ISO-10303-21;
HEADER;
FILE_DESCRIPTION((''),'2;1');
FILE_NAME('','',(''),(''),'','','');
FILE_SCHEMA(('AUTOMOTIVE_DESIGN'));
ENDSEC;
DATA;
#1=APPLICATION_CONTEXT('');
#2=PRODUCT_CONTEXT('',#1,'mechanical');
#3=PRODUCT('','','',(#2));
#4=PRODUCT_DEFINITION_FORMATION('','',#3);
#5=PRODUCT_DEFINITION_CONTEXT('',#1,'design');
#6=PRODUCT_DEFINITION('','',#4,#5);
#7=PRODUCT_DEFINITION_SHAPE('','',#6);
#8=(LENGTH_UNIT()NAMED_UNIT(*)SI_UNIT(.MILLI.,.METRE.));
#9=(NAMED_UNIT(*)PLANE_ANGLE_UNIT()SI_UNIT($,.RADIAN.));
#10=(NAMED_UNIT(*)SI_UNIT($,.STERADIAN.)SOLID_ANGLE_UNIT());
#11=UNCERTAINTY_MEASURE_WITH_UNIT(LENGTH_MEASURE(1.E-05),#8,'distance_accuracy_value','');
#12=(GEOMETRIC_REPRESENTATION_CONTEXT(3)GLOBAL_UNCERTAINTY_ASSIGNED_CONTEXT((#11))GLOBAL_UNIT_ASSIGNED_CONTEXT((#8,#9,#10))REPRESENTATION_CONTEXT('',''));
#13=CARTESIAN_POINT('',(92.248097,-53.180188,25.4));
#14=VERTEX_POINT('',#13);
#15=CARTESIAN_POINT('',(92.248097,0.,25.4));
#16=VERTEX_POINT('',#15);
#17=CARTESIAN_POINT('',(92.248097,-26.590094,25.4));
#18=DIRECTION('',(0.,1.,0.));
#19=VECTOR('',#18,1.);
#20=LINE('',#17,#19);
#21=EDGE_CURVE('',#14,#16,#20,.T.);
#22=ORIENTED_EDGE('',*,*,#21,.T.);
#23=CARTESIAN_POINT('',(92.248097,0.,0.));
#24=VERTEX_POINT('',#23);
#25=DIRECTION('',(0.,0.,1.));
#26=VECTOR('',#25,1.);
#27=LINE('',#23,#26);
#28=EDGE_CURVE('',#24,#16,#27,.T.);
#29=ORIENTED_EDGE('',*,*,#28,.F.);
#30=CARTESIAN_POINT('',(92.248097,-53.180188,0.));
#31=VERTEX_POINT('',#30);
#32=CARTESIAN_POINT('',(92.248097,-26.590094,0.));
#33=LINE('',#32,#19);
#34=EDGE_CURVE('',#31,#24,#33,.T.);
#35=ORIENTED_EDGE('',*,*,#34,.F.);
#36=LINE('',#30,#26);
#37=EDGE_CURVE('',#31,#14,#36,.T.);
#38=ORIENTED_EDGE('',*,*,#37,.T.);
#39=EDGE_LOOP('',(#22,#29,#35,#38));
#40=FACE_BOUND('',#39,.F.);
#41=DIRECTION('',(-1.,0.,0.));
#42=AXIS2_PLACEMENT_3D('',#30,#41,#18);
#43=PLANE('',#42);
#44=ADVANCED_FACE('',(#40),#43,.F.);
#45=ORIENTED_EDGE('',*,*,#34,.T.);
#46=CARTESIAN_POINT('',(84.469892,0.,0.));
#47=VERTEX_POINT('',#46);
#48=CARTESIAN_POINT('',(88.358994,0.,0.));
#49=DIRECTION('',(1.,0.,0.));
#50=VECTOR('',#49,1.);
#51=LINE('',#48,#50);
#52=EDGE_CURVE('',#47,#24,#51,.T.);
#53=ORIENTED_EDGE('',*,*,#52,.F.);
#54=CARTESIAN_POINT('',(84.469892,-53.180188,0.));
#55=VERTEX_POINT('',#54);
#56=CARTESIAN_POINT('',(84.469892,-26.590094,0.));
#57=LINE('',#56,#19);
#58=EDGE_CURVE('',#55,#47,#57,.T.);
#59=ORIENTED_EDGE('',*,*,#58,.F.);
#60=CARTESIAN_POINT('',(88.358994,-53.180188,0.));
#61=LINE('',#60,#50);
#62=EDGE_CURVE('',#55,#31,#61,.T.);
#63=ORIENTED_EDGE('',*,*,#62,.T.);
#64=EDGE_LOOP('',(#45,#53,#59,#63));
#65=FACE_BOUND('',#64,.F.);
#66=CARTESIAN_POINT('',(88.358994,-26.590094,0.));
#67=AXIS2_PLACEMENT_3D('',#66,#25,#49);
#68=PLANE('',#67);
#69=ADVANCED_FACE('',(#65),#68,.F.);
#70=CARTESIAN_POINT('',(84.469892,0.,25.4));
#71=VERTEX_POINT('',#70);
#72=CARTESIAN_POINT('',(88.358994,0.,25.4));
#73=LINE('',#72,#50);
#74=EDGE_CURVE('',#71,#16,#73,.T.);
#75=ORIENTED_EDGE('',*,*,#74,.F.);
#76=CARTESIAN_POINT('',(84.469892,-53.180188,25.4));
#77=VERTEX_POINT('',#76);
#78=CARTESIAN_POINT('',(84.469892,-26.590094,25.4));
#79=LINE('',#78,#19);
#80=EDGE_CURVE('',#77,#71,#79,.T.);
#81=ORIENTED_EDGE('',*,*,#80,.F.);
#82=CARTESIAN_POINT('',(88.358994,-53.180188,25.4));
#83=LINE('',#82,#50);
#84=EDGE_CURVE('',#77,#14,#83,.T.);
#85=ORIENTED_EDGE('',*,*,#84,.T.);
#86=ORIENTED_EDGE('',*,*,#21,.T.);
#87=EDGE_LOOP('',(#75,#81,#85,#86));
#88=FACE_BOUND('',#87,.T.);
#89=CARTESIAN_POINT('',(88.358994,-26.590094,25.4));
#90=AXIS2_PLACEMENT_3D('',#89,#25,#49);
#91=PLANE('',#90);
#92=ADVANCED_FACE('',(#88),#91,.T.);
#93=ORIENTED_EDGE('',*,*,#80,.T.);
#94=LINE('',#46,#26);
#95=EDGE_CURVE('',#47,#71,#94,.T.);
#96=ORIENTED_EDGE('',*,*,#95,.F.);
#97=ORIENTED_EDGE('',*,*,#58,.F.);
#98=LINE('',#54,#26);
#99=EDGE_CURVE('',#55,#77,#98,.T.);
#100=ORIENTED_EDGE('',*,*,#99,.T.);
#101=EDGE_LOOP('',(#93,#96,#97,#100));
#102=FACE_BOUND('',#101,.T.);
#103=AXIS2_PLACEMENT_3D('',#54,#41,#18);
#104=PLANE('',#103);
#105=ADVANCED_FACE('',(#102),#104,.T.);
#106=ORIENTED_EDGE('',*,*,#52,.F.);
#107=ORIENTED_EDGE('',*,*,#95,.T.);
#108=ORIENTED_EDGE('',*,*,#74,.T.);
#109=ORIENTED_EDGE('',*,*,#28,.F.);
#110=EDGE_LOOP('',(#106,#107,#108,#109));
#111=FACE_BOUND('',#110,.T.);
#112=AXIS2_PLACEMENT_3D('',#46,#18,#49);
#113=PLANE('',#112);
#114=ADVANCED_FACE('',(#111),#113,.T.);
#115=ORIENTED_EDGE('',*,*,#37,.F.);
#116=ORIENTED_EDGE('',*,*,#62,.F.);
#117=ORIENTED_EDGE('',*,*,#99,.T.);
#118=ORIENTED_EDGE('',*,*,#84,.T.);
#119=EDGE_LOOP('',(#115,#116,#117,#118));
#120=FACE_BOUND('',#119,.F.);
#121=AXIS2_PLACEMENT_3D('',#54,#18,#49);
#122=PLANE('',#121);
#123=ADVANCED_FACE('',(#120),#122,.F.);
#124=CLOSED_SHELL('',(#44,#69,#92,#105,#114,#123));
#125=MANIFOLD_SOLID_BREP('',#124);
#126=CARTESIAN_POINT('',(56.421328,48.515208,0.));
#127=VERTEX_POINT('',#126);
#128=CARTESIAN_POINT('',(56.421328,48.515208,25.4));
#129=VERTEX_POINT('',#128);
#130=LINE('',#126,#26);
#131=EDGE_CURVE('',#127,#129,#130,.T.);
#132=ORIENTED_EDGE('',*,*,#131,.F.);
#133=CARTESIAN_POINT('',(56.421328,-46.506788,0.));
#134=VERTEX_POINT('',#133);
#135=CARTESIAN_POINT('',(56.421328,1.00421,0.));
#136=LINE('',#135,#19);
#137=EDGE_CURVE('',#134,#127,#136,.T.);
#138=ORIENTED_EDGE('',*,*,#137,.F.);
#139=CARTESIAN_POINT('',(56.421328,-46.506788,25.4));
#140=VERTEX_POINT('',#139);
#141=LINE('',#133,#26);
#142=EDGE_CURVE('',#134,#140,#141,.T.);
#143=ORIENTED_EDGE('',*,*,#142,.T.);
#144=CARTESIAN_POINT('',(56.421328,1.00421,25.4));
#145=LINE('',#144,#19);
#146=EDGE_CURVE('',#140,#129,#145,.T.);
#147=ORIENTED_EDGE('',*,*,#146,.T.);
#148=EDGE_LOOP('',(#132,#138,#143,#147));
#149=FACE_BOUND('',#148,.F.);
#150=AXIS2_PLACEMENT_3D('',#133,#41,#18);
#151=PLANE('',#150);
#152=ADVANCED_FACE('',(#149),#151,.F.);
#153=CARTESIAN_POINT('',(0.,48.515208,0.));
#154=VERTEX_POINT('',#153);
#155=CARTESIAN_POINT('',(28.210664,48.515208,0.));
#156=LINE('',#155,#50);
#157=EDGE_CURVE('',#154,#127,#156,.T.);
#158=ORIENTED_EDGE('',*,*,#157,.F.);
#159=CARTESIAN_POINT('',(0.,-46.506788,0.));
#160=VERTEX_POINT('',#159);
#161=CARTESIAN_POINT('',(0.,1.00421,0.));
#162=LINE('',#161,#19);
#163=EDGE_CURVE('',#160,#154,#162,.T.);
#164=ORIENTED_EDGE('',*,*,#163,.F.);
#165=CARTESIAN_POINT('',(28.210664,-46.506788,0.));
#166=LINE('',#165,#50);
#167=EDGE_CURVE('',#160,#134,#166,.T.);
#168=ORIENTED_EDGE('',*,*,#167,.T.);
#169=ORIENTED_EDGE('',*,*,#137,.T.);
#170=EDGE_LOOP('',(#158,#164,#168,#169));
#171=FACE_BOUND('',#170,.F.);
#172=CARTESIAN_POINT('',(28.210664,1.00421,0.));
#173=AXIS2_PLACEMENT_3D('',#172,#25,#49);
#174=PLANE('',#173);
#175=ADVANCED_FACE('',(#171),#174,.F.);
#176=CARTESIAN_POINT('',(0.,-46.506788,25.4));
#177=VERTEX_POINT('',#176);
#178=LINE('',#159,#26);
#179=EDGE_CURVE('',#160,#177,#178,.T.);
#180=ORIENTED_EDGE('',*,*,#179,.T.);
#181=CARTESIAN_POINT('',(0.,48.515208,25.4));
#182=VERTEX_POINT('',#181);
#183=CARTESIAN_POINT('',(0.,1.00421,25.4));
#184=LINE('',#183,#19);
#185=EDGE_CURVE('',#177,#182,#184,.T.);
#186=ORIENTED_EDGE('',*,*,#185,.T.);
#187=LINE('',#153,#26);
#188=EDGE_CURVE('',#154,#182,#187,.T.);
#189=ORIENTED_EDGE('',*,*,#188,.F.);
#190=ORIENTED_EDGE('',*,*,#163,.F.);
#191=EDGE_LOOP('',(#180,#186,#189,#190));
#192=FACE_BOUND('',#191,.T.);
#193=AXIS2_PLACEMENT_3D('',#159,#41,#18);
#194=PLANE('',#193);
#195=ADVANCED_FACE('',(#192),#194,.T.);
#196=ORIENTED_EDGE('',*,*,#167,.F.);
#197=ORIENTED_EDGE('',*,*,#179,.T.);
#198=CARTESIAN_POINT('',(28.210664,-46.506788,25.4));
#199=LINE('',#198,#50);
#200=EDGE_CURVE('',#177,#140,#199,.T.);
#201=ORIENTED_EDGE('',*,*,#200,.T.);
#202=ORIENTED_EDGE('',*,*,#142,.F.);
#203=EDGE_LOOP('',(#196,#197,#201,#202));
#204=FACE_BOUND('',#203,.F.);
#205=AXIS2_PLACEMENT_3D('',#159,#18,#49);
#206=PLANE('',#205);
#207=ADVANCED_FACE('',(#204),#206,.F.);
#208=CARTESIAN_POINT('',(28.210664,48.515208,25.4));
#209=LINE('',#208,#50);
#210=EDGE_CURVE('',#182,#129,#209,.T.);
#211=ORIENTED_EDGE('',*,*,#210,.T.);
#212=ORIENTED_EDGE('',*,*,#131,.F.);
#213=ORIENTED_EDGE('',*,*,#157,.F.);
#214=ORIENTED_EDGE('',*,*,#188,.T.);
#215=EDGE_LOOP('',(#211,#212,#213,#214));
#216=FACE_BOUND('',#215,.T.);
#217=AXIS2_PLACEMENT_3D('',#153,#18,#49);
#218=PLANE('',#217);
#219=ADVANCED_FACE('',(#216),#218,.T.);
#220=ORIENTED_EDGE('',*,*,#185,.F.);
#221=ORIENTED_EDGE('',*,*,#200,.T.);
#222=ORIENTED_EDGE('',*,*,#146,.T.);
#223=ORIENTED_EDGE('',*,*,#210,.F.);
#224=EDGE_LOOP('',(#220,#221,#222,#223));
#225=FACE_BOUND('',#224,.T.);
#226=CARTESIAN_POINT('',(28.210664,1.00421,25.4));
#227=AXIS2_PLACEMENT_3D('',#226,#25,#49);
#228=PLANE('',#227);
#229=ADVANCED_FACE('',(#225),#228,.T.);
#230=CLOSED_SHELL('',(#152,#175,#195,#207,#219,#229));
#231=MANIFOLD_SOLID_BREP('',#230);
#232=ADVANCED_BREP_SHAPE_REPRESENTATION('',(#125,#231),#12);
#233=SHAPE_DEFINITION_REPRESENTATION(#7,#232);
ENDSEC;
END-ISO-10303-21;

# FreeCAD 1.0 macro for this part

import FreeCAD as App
import Part
import Sketcher

V = App.Vector
Q = App.Units.Quantity

doc = App.newDocument("Part")
body = doc.addObject("PartDesign::Body", "Body")
body.AllowCompound = True

sketch1 = body.newObject("Sketcher::SketchObject", "Sketch")
sketch1.AttachmentSupport = (doc.getObject("XY_Plane"), [""])
sketch1.MapMode = "FlatFace"
sketch1.addGeometry(Part.LineSegment(V(0, 48.515208, 0), V(0, -46.506788, 0)), False)
sketch1.addGeometry(Part.LineSegment(V(0, -46.506788, 0), V(56.421328, -46.506788, 0)), False)
sketch1.addGeometry(Part.LineSegment(V(56.421328, -46.506788, 0), V(56.421328, 48.515208, 0)), False)
sketch1.addGeometry(Part.LineSegment(V(56.421328, 48.515208, 0), V(0, 48.515208, 0)), False)
sketch1.addGeometry(Part.LineSegment(V(84.469892, 0, 0), V(84.469892, -53.180188, 0)), False)
sketch1.addGeometry(Part.LineSegment(V(84.469892, -53.180188, 0), V(92.248097, -53.180188, 0)), False)
sketch1.addGeometry(Part.LineSegment(V(92.248097, -53.180188, 0), V(92.248097, 0, 0)), False)
sketch1.addGeometry(Part.LineSegment(V(92.248097, 0, 0), V(84.469892, 0, 0)), False)
sketch1.addConstraint(Sketcher.Constraint("Coincident", 0, 2, 1, 1))
sketch1.addConstraint(Sketcher.Constraint("Coincident", 1, 2, 2, 1))
sketch1.addConstraint(Sketcher.Constraint("Coincident", 2, 2, 3, 1))
sketch1.addConstraint(Sketcher.Constraint("Coincident", 3, 2, 0, 1))
sketch1.addConstraint(Sketcher.Constraint("Coincident", 4, 2, 5, 1))
sketch1.addConstraint(Sketcher.Constraint("Coincident", 5, 2, 6, 1))
sketch1.addConstraint(Sketcher.Constraint("Coincident", 6, 2, 7, 1))
sketch1.addConstraint(Sketcher.Constraint("Coincident", 7, 2, 4, 1))
sketch1.addConstraint(Sketcher.Constraint("Vertical", 0))
sketch1.addConstraint(Sketcher.Constraint("Horizontal", 1))
sketch1.addConstraint(Sketcher.Constraint("Vertical", 2))
sketch1.addConstraint(Sketcher.Constraint("Horizontal", 3))
sketch1.addConstraint(Sketcher.Constraint("Vertical", 4))
sketch1.addConstraint(Sketcher.Constraint("Horizontal", 5))
sketch1.addConstraint(Sketcher.Constraint("Vertical", 6))
sketch1.addConstraint(Sketcher.Constraint("Horizontal", 7))
sketch1.addConstraint(Sketcher.Constraint("PointOnObject", 0, 2, -2))
sketch1.addConstraint(Sketcher.Constraint("PointOnObject", 6, 2, -1))
sketch1.addConstraint(Sketcher.Constraint("DistanceX", 1, 1, 1, 2, Q("56.421328 mm")))
sketch1.addConstraint(Sketcher.Constraint("DistanceY", 4, 2, 1, 2, Q("6.6734 mm")))
sketch1.addConstraint(Sketcher.Constraint("DistanceX", 5, 1, 5, 2, Q("7.778205 mm")))
sketch1.addConstraint(Sketcher.Constraint("DistanceY", 0, 2, 0, 1, Q("95.021997 mm")))
sketch1.addConstraint(Sketcher.Constraint("DistanceY", 4, 2, 4, 1, Q("53.180188 mm")))
sketch1.addConstraint(Sketcher.Constraint("DistanceX", -1, 1, 4, 2, Q("84.469892 mm")))
pad1 = body.newObject("PartDesign::Pad", "Pad")
pad1.Profile = sketch1
pad1.Length = Q("1 in")

doc.recompute()
